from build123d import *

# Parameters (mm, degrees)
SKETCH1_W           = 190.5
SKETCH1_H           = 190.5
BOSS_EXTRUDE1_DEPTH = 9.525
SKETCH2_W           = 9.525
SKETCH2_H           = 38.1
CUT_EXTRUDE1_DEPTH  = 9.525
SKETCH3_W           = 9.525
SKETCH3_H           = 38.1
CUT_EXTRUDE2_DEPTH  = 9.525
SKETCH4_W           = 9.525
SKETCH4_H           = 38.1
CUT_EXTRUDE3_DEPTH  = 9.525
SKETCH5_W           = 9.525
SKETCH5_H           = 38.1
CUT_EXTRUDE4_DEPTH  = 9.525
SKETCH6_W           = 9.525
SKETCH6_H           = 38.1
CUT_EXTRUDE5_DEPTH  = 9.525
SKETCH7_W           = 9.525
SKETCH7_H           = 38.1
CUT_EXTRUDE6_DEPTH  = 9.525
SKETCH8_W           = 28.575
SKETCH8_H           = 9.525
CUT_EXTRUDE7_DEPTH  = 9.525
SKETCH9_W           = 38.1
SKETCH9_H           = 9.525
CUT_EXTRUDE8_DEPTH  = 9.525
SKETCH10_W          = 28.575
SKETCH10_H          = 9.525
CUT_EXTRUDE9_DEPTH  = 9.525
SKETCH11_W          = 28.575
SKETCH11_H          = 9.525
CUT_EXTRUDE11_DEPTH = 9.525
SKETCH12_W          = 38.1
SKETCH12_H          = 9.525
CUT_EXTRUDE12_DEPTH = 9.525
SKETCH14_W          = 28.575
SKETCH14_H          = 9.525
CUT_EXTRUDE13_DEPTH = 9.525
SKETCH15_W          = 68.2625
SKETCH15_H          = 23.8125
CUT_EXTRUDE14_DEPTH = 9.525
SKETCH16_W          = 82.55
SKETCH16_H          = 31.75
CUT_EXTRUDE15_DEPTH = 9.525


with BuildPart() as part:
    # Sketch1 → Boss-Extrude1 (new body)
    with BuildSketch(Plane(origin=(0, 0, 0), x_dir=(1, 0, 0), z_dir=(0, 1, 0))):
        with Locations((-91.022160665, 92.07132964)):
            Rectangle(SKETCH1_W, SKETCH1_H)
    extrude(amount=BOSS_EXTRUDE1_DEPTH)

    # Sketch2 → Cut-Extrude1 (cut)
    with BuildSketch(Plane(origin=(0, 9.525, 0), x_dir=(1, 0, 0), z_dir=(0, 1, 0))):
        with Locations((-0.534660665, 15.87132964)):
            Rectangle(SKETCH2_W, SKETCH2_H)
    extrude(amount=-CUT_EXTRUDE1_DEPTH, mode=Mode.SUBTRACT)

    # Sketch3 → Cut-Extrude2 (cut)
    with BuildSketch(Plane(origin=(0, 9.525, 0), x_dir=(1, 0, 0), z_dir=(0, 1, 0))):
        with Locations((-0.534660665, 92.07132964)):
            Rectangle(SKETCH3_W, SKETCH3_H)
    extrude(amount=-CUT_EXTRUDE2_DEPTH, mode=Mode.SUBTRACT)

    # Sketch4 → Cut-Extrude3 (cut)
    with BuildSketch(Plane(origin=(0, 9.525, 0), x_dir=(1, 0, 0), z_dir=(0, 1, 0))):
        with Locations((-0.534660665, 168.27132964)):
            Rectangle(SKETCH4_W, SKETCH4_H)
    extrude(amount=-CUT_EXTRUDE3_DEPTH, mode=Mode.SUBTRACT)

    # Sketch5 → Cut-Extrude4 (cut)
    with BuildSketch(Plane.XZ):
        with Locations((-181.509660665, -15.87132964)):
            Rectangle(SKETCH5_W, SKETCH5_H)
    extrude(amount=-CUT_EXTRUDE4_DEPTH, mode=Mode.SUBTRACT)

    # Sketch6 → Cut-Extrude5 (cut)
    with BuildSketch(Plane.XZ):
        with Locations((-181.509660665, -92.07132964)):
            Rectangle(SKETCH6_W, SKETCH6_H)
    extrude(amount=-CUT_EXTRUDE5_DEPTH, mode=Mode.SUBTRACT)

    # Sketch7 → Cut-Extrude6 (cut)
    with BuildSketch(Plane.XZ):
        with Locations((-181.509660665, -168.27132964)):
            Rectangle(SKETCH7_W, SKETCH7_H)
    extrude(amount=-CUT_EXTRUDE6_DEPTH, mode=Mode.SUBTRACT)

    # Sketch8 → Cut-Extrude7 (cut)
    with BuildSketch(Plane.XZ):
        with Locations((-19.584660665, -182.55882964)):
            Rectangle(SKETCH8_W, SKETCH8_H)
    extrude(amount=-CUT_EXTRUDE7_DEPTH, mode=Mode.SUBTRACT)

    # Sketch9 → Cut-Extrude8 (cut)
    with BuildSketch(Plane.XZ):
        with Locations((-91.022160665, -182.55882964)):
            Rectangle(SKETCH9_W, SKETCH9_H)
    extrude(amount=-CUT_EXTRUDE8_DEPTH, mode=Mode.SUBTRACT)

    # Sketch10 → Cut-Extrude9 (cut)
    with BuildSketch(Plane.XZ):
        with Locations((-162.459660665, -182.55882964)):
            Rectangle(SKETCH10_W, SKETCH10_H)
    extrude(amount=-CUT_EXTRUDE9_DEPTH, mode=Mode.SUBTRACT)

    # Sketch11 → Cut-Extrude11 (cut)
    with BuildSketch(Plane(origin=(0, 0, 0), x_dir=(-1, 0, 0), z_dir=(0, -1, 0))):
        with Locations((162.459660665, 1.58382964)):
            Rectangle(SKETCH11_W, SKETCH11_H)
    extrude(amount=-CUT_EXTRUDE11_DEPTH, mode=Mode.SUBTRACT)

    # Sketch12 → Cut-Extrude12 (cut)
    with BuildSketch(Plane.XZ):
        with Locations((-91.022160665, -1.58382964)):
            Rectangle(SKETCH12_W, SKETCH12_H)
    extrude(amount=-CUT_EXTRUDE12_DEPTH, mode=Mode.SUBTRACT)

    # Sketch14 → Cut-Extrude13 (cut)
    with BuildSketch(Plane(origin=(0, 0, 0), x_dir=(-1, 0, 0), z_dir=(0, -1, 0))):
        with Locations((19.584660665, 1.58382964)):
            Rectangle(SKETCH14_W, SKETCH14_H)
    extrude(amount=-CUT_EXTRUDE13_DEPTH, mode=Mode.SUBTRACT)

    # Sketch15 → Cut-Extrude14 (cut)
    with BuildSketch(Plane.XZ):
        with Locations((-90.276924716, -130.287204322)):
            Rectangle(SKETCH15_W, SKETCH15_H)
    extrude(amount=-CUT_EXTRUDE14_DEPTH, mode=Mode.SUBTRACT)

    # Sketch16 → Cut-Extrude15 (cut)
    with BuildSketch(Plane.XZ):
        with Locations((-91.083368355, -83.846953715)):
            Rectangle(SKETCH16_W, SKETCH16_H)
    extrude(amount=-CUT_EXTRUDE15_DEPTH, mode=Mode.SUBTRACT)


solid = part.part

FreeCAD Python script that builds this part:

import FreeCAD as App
import Part
import Sketcher
from FreeCAD import Vector
Q = App.Units.Quantity

doc = App.newDocument("Part")
body = doc.addObject("PartDesign::Body", "Body")

sketch1 = body.newObject("Sketcher::SketchObject", "Sketch")
sketch1.AttachmentSupport = (doc.getObject("XZ_Plane"), [""])
sketch1.MapMode = "FlatFace"
sketch1.addGeometry([
    Part.LineSegment(Vector(-186, -187, 0), Vector(-186, 3, 0)),
    Part.LineSegment(Vector(-186, 3, 0), Vector(4, 3, 0)),
    Part.LineSegment(Vector(4, 3, 0), Vector(4, -187, 0)),
    Part.LineSegment(Vector(4, -187, 0), Vector(-186, -187, 0)),
], False)
sketch1.addConstraint([
    Sketcher.Constraint("Coincident", 0, 2, 1, 1),
    Sketcher.Constraint("Coincident", 1, 2, 2, 1),
    Sketcher.Constraint("Coincident", 2, 2, 3, 1),
    Sketcher.Constraint("Coincident", 3, 2, 0, 1),
    Sketcher.Constraint("Vertical", 0),
    Sketcher.Constraint("Horizontal", 1),
    Sketcher.Constraint("Vertical", 2),
    Sketcher.Constraint("Horizontal", 3),
    Sketcher.Constraint("Equal", 3, 0),
    Sketcher.Constraint("DistanceX", 1, 1, 1, 2, Q("7.5 in")),
    Sketcher.Constraint("DistanceX", 0, 2, -1, 1, Q("186.272161 mm")),
    Sketcher.Constraint("DistanceY", -1, 1, 0, 2, Q("3.17867 mm")),
])
pad1 = body.newObject("PartDesign::Pad", "Pad")
pad1.Profile = sketch1
pad1.Length = Q("0.375 in")
pad1.Reversed = True

sketch2 = body.newObject("Sketcher::SketchObject", "Sketch001")
sketch2.AttachmentSupport = (doc.getObject("XZ_Plane"), [""])
sketch2.MapMode = "FlatFace"
sketch2.AttachmentOffset = App.Placement(Vector(0, 0, -0.375 * 25.4), App.Rotation())
sketch2.addGeometry([
    Part.LineSegment(Vector(-5, -35, 0), Vector(-5, 3, 0)),
    Part.LineSegment(Vector(-5, 3, 0), Vector(4, 3, 0)),
    Part.LineSegment(Vector(4, 3, 0), Vector(4, -35, 0)),
    Part.LineSegment(Vector(4, -35, 0), Vector(-5, -35, 0)),
], False)
sketch2.addConstraint([
    Sketcher.Constraint("Coincident", 0, 2, 1, 1),
    Sketcher.Constraint("Coincident", 1, 2, 2, 1),
    Sketcher.Constraint("Coincident", 2, 2, 3, 1),
    Sketcher.Constraint("Coincident", 3, 2, 0, 1),
    Sketcher.Constraint("Vertical", 0),
    Sketcher.Constraint("Horizontal", 1),
    Sketcher.Constraint("Vertical", 2),
    Sketcher.Constraint("Horizontal", 3),
    Sketcher.Constraint("DistanceY", 0, 1, 0, 2, Q("1.5 in")),
    Sketcher.Constraint("DistanceX", 1, 1, 1, 2, Q("0.375 in")),
    Sketcher.Constraint("DistanceX", 0, 2, -1, 1, Q("5.297161 mm")),
    Sketcher.Constraint("DistanceY", -1, 1, 0, 2, Q("3.17867 mm")),
])
pocket1 = body.newObject("PartDesign::Pocket", "Pocket")
pocket1.Profile = sketch2
pocket1.Length = Q("0.375 in")
pocket1.Reversed = True

sketch3 = body.newObject("Sketcher::SketchObject", "Sketch002")
sketch3.AttachmentSupport = (doc.getObject("XZ_Plane"), [""])
sketch3.MapMode = "FlatFace"
sketch3.AttachmentOffset = App.Placement(Vector(0, 0, -0.375 * 25.4), App.Rotation())
sketch3.addGeometry([
    Part.LineSegment(Vector(-5, -111, 0), Vector(-5, -73, 0)),
    Part.LineSegment(Vector(-5, -73, 0), Vector(4, -73, 0)),
    Part.LineSegment(Vector(4, -73, 0), Vector(4, -111, 0)),
    Part.LineSegment(Vector(4, -111, 0), Vector(-5, -111, 0)),
], False)
sketch3.addConstraint([
    Sketcher.Constraint("Coincident", 0, 2, 1, 1),
    Sketcher.Constraint("Coincident", 1, 2, 2, 1),
    Sketcher.Constraint("Coincident", 2, 2, 3, 1),
    Sketcher.Constraint("Coincident", 3, 2, 0, 1),
    Sketcher.Constraint("Vertical", 0),
    Sketcher.Constraint("Horizontal", 1),
    Sketcher.Constraint("Vertical", 2),
    Sketcher.Constraint("Horizontal", 3),
    Sketcher.Constraint("DistanceY", 0, 1, 0, 2, Q("1.5 in")),
    Sketcher.Constraint("DistanceX", 1, 1, 1, 2, Q("0.375 in")),
    Sketcher.Constraint("DistanceX", 0, 2, -1, 1, Q("5.297161 mm")),
    Sketcher.Constraint("DistanceY", 0, 2, -1, 1, Q("73.02133 mm")),
])
pocket2 = body.newObject("PartDesign::Pocket", "Pocket001")
pocket2.Profile = sketch3
pocket2.Length = Q("0.375 in")
pocket2.Reversed = True

sketch4 = body.newObject("Sketcher::SketchObject", "Sketch003")
sketch4.AttachmentSupport = (doc.getObject("XZ_Plane"), [""])
sketch4.MapMode = "FlatFace"
sketch4.AttachmentOffset = App.Placement(Vector(0, 0, -0.375 * 25.4), App.Rotation())
sketch4.addGeometry([
    Part.LineSegment(Vector(-5, -187, 0), Vector(-5, -149, 0)),
    Part.LineSegment(Vector(-5, -149, 0), Vector(4, -149, 0)),
    Part.LineSegment(Vector(4, -149, 0), Vector(4, -187, 0)),
    Part.LineSegment(Vector(4, -187, 0), Vector(-5, -187, 0)),
], False)
sketch4.addConstraint([
    Sketcher.Constraint("Coincident", 0, 2, 1, 1),
    Sketcher.Constraint("Coincident", 1, 2, 2, 1),
    Sketcher.Constraint("Coincident", 2, 2, 3, 1),
    Sketcher.Constraint("Coincident", 3, 2, 0, 1),
    Sketcher.Constraint("Vertical", 0),
    Sketcher.Constraint("Horizontal", 1),
    Sketcher.Constraint("Vertical", 2),
    Sketcher.Constraint("Horizontal", 3),
    Sketcher.Constraint("DistanceY", 0, 1, 0, 2, Q("1.5 in")),
    Sketcher.Constraint("DistanceX", 1, 1, 1, 2, Q("0.375 in")),
    Sketcher.Constraint("DistanceX", 0, 2, -1, 1, Q("5.297161 mm")),
    Sketcher.Constraint("DistanceY", 0, 2, -1, 1, Q("149.22133 mm")),
])
pocket3 = body.newObject("PartDesign::Pocket", "Pocket002")
pocket3.Profile = sketch4
pocket3.Length = Q("0.375 in")
pocket3.Reversed = True

sketch5 = body.newObject("Sketcher::SketchObject", "Sketch004")
sketch5.AttachmentSupport = (doc.getObject("XZ_Plane"), [""])
sketch5.MapMode = "FlatFace"
sketch5.addGeometry([
    Part.LineSegment(Vector(-186, 3, 0), Vector(-186, -35, 0)),
    Part.LineSegment(Vector(-186, -35, 0), Vector(-177, -35, 0)),
    Part.LineSegment(Vector(-177, -35, 0), Vector(-177, 3, 0)),
    Part.LineSegment(Vector(-177, 3, 0), Vector(-186, 3, 0)),
], False)
sketch5.addConstraint([
    Sketcher.Constraint("Coincident", 0, 2, 1, 1),
    Sketcher.Constraint("Coincident", 1, 2, 2, 1),
    Sketcher.Constraint("Coincident", 2, 2, 3, 1),
    Sketcher.Constraint("Coincident", 3, 2, 0, 1),
    Sketcher.Constraint("Vertical", 0),
    Sketcher.Constraint("Horizontal", 1),
    Sketcher.Constraint("Vertical", 2),
    Sketcher.Constraint("Horizontal", 3),
    Sketcher.Constraint("DistanceY", 0, 2, 0, 1, Q("1.5 in")),
    Sketcher.Constraint("DistanceX", 1, 1, 1, 2, Q("0.375 in")),
    Sketcher.Constraint("DistanceX", 0, 2, -1, 1, Q("186.272161 mm")),
    Sketcher.Constraint("DistanceY", 0, 2, -1, 1, Q("34.92133 mm")),
])
pocket4 = body.newObject("PartDesign::Pocket", "Pocket003")
pocket4.Profile = sketch5
pocket4.Length = Q("0.375 in")

sketch6 = body.newObject("Sketcher::SketchObject", "Sketch005")
sketch6.AttachmentSupport = (doc.getObject("XZ_Plane"), [""])
sketch6.MapMode = "FlatFace"
sketch6.addGeometry([
    Part.LineSegment(Vector(-186, -73, 0), Vector(-186, -111, 0)),
    Part.LineSegment(Vector(-186, -111, 0), Vector(-177, -111, 0)),
    Part.LineSegment(Vector(-177, -111, 0), Vector(-177, -73, 0)),
    Part.LineSegment(Vector(-177, -73, 0), Vector(-186, -73, 0)),
], False)
sketch6.addConstraint([
    Sketcher.Constraint("Coincident", 0, 2, 1, 1),
    Sketcher.Constraint("Coincident", 1, 2, 2, 1),
    Sketcher.Constraint("Coincident", 2, 2, 3, 1),
    Sketcher.Constraint("Coincident", 3, 2, 0, 1),
    Sketcher.Constraint("Vertical", 0),
    Sketcher.Constraint("Horizontal", 1),
    Sketcher.Constraint("Vertical", 2),
    Sketcher.Constraint("Horizontal", 3),
    Sketcher.Constraint("DistanceY", 0, 2, 0, 1, Q("1.5 in")),
    Sketcher.Constraint("DistanceX", 1, 1, 1, 2, Q("0.375 in")),
    Sketcher.Constraint("DistanceX", 0, 2, -1, 1, Q("186.272161 mm")),
    Sketcher.Constraint("DistanceY", 0, 2, -1, 1, Q("111.12133 mm")),
])
pocket5 = body.newObject("PartDesign::Pocket", "Pocket004")
pocket5.Profile = sketch6
pocket5.Length = Q("0.375 in")

sketch7 = body.newObject("Sketcher::SketchObject", "Sketch006")
sketch7.AttachmentSupport = (doc.getObject("XZ_Plane"), [""])
sketch7.MapMode = "FlatFace"
sketch7.addGeometry([
    Part.LineSegment(Vector(-186, -149, 0), Vector(-186, -187, 0)),
    Part.LineSegment(Vector(-186, -187, 0), Vector(-177, -187, 0)),
    Part.LineSegment(Vector(-177, -187, 0), Vector(-177, -149, 0)),
    Part.LineSegment(Vector(-177, -149, 0), Vector(-186, -149, 0)),
], False)
sketch7.addConstraint([
    Sketcher.Constraint("Coincident", 0, 2, 1, 1),
    Sketcher.Constraint("Coincident", 1, 2, 2, 1),
    Sketcher.Constraint("Coincident", 2, 2, 3, 1),
    Sketcher.Constraint("Coincident", 3, 2, 0, 1),
    Sketcher.Constraint("Vertical", 0),
    Sketcher.Constraint("Horizontal", 1),
    Sketcher.Constraint("Vertical", 2),
    Sketcher.Constraint("Horizontal", 3),
    Sketcher.Constraint("DistanceY", 0, 2, 0, 1, Q("1.5 in")),
    Sketcher.Constraint("DistanceX", 1, 1, 1, 2, Q("0.375 in")),
    Sketcher.Constraint("DistanceX", 0, 2, -1, 1, Q("186.272161 mm")),
    Sketcher.Constraint("DistanceY", 0, 2, -1, 1, Q("187.32133 mm")),
])
pocket6 = body.newObject("PartDesign::Pocket", "Pocket005")
pocket6.Profile = sketch7
pocket6.Length = Q("0.375 in")

sketch8 = body.newObject("Sketcher::SketchObject", "Sketch007")
sketch8.AttachmentSupport = (doc.getObject("XZ_Plane"), [""])
sketch8.MapMode = "FlatFace"
sketch8.addGeometry([
    Part.LineSegment(Vector(-34, -178, 0), Vector(-34, -187, 0)),
    Part.LineSegment(Vector(-34, -187, 0), Vector(-5, -187, 0)),
    Part.LineSegment(Vector(-5, -187, 0), Vector(-5, -178, 0)),
    Part.LineSegment(Vector(-5, -178, 0), Vector(-34, -178, 0)),
], False)
sketch8.addConstraint([
    Sketcher.Constraint("Coincident", 0, 2, 1, 1),
    Sketcher.Constraint("Coincident", 1, 2, 2, 1),
    Sketcher.Constraint("Coincident", 2, 2, 3, 1),
    Sketcher.Constraint("Coincident", 3, 2, 0, 1),
    Sketcher.Constraint("Vertical", 0),
    Sketcher.Constraint("Horizontal", 1),
    Sketcher.Constraint("Vertical", 2),
    Sketcher.Constraint("Horizontal", 3),
    Sketcher.Constraint("DistanceX", 1, 1, 1, 2, Q("1.125 in")),
    Sketcher.Constraint("DistanceY", 0, 2, 0, 1, Q("0.375 in")),
    Sketcher.Constraint("DistanceX", 0, 2, -1, 1, Q("33.872161 mm")),
    Sketcher.Constraint("DistanceY", 0, 2, -1, 1, Q("187.32133 mm")),
])
pocket7 = body.newObject("PartDesign::Pocket", "Pocket006")
pocket7.Profile = sketch8
pocket7.Length = Q("0.375 in")

sketch9 = body.newObject("Sketcher::SketchObject", "Sketch008")
sketch9.AttachmentSupport = (doc.getObject("XZ_Plane"), [""])
sketch9.MapMode = "FlatFace"
sketch9.addGeometry([
    Part.LineSegment(Vector(-110, -178, 0), Vector(-110, -187, 0)),
    Part.LineSegment(Vector(-110, -187, 0), Vector(-72, -187, 0)),
    Part.LineSegment(Vector(-72, -187, 0), Vector(-72, -178, 0)),
    Part.LineSegment(Vector(-72, -178, 0), Vector(-110, -178, 0)),
], False)
sketch9.addConstraint([
    Sketcher.Constraint("Coincident", 0, 2, 1, 1),
    Sketcher.Constraint("Coincident", 1, 2, 2, 1),
    Sketcher.Constraint("Coincident", 2, 2, 3, 1),
    Sketcher.Constraint("Coincident", 3, 2, 0, 1),
    Sketcher.Constraint("Vertical", 0),
    Sketcher.Constraint("Horizontal", 1),
    Sketcher.Constraint("Vertical", 2),
    Sketcher.Constraint("Horizontal", 3),
    Sketcher.Constraint("DistanceX", 1, 1, 1, 2, Q("1.5 in")),
    Sketcher.Constraint("DistanceY", 0, 2, 0, 1, Q("0.375 in")),
    Sketcher.Constraint("DistanceX", 0, 2, -1, 1, Q("110.072161 mm")),
    Sketcher.Constraint("DistanceY", 0, 2, -1, 1, Q("187.32133 mm")),
])
pocket8 = body.newObject("PartDesign::Pocket", "Pocket007")
pocket8.Profile = sketch9
pocket8.Length = Q("0.375 in")

sketch10 = body.newObject("Sketcher::SketchObject", "Sketch009")
sketch10.AttachmentSupport = (doc.getObject("XZ_Plane"), [""])
sketch10.MapMode = "FlatFace"
sketch10.addGeometry([
    Part.LineSegment(Vector(-177, -178, 0), Vector(-177, -187, 0)),
    Part.LineSegment(Vector(-177, -187, 0), Vector(-148, -187, 0)),
    Part.LineSegment(Vector(-148, -187, 0), Vector(-148, -178, 0)),
    Part.LineSegment(Vector(-148, -178, 0), Vector(-177, -178, 0)),
], False)
sketch10.addConstraint([
    Sketcher.Constraint("Coincident", 0, 2, 1, 1),
    Sketcher.Constraint("Coincident", 1, 2, 2, 1),
    Sketcher.Constraint("Coincident", 2, 2, 3, 1),
    Sketcher.Constraint("Coincident", 3, 2, 0, 1),
    Sketcher.Constraint("Vertical", 0),
    Sketcher.Constraint("Horizontal", 1),
    Sketcher.Constraint("Vertical", 2),
    Sketcher.Constraint("Horizontal", 3),
    Sketcher.Constraint("DistanceX", 1, 1, 1, 2, Q("1.125 in")),
    Sketcher.Constraint("DistanceY", 0, 2, 0, 1, Q("0.375 in")),
    Sketcher.Constraint("DistanceX", 0, 2, -1, 1, Q("176.747161 mm")),
    Sketcher.Constraint("DistanceY", 0, 2, -1, 1, Q("187.32133 mm")),
])
pocket9 = body.newObject("PartDesign::Pocket", "Pocket008")
pocket9.Profile = sketch10
pocket9.Length = Q("0.375 in")

sketch11 = body.newObject("Sketcher::SketchObject", "Sketch010")
sketch11.AttachmentSupport = (doc.getObject("XZ_Plane"), [""])
sketch11.MapMode = "FlatFace"
sketch11.addGeometry([
    Part.LineSegment(Vector(-148, -6, 0), Vector(-148, 3, 0)),
    Part.LineSegment(Vector(-148, 3, 0), Vector(-177, 3, 0)),
    Part.LineSegment(Vector(-177, 3, 0), Vector(-177, -6, 0)),
    Part.LineSegment(Vector(-177, -6, 0), Vector(-148, -6, 0)),
], False)
sketch11.addConstraint([
    Sketcher.Constraint("Coincident", 0, 2, 1, 1),
    Sketcher.Constraint("Coincident", 1, 2, 2, 1),
    Sketcher.Constraint("Coincident", 2, 2, 3, 1),
    Sketcher.Constraint("Coincident", 3, 2, 0, 1),
    Sketcher.Constraint("Vertical", 0),
    Sketcher.Constraint("Horizontal", 1),
    Sketcher.Constraint("Vertical", 2),
    Sketcher.Constraint("Horizontal", 3),
    Sketcher.Constraint("DistanceX", 1, 2, 1, 1, Q("1.125 in")),
    Sketcher.Constraint("DistanceY", 0, 1, 0, 2, Q("0.375 in")),
    Sketcher.Constraint("DistanceX", 0, 2, -1, 1, Q("148.172161 mm")),
    Sketcher.Constraint("DistanceY", -1, 1, 0, 2, Q("3.17867 mm")),
])
pocket10 = body.newObject("PartDesign::Pocket", "Pocket009")
pocket10.Profile = sketch11
pocket10.Length = Q("0.375 in")

sketch12 = body.newObject("Sketcher::SketchObject", "Sketch011")
sketch12.AttachmentSupport = (doc.getObject("XZ_Plane"), [""])
sketch12.MapMode = "FlatFace"
sketch12.addGeometry([
    Part.LineSegment(Vector(-110, 3, 0), Vector(-110, -6, 0)),
    Part.LineSegment(Vector(-110, -6, 0), Vector(-72, -6, 0)),
    Part.LineSegment(Vector(-72, -6, 0), Vector(-72, 3, 0)),
    Part.LineSegment(Vector(-72, 3, 0), Vector(-110, 3, 0)),
], False)
sketch12.addConstraint([
    Sketcher.Constraint("Coincident", 0, 2, 1, 1),
    Sketcher.Constraint("Coincident", 1, 2, 2, 1),
    Sketcher.Constraint("Coincident", 2, 2, 3, 1),
    Sketcher.Constraint("Coincident", 3, 2, 0, 1),
    Sketcher.Constraint("Vertical", 0),
    Sketcher.Constraint("Horizontal", 1),
    Sketcher.Constraint("Vertical", 2),
    Sketcher.Constraint("Horizontal", 3),
    Sketcher.Constraint("DistanceX", 1, 1, 1, 2, Q("1.5 in")),
    Sketcher.Constraint("DistanceY", 0, 2, 0, 1, Q("0.375 in")),
    Sketcher.Constraint("DistanceX", 0, 2, -1, 1, Q("110.072161 mm")),
    Sketcher.Constraint("DistanceY", 0, 2, -1, 1, Q("6.34633 mm")),
])
pocket11 = body.newObject("PartDesign::Pocket", "Pocket010")
pocket11.Profile = sketch12
pocket11.Length = Q("0.375 in")

sketch13 = body.newObject("Sketcher::SketchObject", "Sketch012")
sketch13.AttachmentSupport = (doc.getObject("XZ_Plane"), [""])
sketch13.MapMode = "FlatFace"
sketch13.addGeometry([
    Part.LineSegment(Vector(-5, -6, 0), Vector(-5, 3, 0)),
    Part.LineSegment(Vector(-5, 3, 0), Vector(-34, 3, 0)),
    Part.LineSegment(Vector(-34, 3, 0), Vector(-34, -6, 0)),
    Part.LineSegment(Vector(-34, -6, 0), Vector(-5, -6, 0)),
], False)
sketch13.addConstraint([
    Sketcher.Constraint("Coincident", 0, 2, 1, 1),
    Sketcher.Constraint("Coincident", 1, 2, 2, 1),
    Sketcher.Constraint("Coincident", 2, 2, 3, 1),
    Sketcher.Constraint("Coincident", 3, 2, 0, 1),
    Sketcher.Constraint("Vertical", 0),
    Sketcher.Constraint("Horizontal", 1),
    Sketcher.Constraint("Vertical", 2),
    Sketcher.Constraint("Horizontal", 3),
    Sketcher.Constraint("DistanceX", 1, 2, 1, 1, Q("1.125 in")),
    Sketcher.Constraint("DistanceY", 0, 1, 0, 2, Q("0.375 in")),
    Sketcher.Constraint("DistanceX", 0, 2, -1, 1, Q("5.297161 mm")),
    Sketcher.Constraint("DistanceY", -1, 1, 0, 2, Q("3.17867 mm")),
])
pocket12 = body.newObject("PartDesign::Pocket", "Pocket011")
pocket12.Profile = sketch13
pocket12.Length = Q("0.375 in")

sketch14 = body.newObject("Sketcher::SketchObject", "Sketch013")
sketch14.AttachmentSupport = (doc.getObject("XZ_Plane"), [""])
sketch14.MapMode = "FlatFace"
sketch14.addGeometry([
    Part.LineSegment(Vector(-124, -118, 0), Vector(-124, -142, 0)),
    Part.LineSegment(Vector(-124, -142, 0), Vector(-56, -142, 0)),
    Part.LineSegment(Vector(-56, -142, 0), Vector(-56, -118, 0)),
    Part.LineSegment(Vector(-56, -118, 0), Vector(-124, -118, 0)),
], False)
sketch14.addConstraint([
    Sketcher.Constraint("Coincident", 0, 2, 1, 1),
    Sketcher.Constraint("Coincident", 1, 2, 2, 1),
    Sketcher.Constraint("Coincident", 2, 2, 3, 1),
    Sketcher.Constraint("Coincident", 3, 2, 0, 1),
    Sketcher.Constraint("Vertical", 0),
    Sketcher.Constraint("Horizontal", 1),
    Sketcher.Constraint("Vertical", 2),
    Sketcher.Constraint("Horizontal", 3),
    Sketcher.Constraint("DistanceX", 1, 1, 1, 2, Q("2.6875 in")),
    Sketcher.Constraint("DistanceY", 0, 2, 0, 1, Q("0.9375 in")),
    Sketcher.Constraint("DistanceX", 0, 2, -1, 1, Q("124.408175 mm")),
    Sketcher.Constraint("DistanceY", 0, 2, -1, 1, Q("142.193454 mm")),
])
pocket13 = body.newObject("PartDesign::Pocket", "Pocket012")
pocket13.Profile = sketch14
pocket13.Length = Q("0.375 in")

sketch15 = body.newObject("Sketcher::SketchObject", "Sketch014")
sketch15.AttachmentSupport = (doc.getObject("XZ_Plane"), [""])
sketch15.MapMode = "FlatFace"
sketch15.addGeometry([
    Part.LineSegment(Vector(-132, -68, 0), Vector(-132, -100, 0)),
    Part.LineSegment(Vector(-132, -100, 0), Vector(-50, -100, 0)),
    Part.LineSegment(Vector(-50, -100, 0), Vector(-50, -68, 0)),
    Part.LineSegment(Vector(-50, -68, 0), Vector(-132, -68, 0)),
], False)
sketch15.addConstraint([
    Sketcher.Constraint("Coincident", 0, 2, 1, 1),
    Sketcher.Constraint("Coincident", 1, 2, 2, 1),
    Sketcher.Constraint("Coincident", 2, 2, 3, 1),
    Sketcher.Constraint("Coincident", 3, 2, 0, 1),
    Sketcher.Constraint("Vertical", 0),
    Sketcher.Constraint("Horizontal", 1),
    Sketcher.Constraint("Vertical", 2),
    Sketcher.Constraint("Horizontal", 3),
    Sketcher.Constraint("DistanceX", 1, 1, 1, 2, Q("3.25 in")),
    Sketcher.Constraint("DistanceY", 0, 2, 0, 1, Q("1.25 in")),
    Sketcher.Constraint("DistanceX", 0, 2, -1, 1, Q("132.358368 mm")),
    Sketcher.Constraint("DistanceY", 0, 2, -1, 1, Q("99.721954 mm")),
])
pocket14 = body.newObject("PartDesign::Pocket", "Pocket013")
pocket14.Profile = sketch15
pocket14.Length = Q("0.375 in")

doc.recompute()
